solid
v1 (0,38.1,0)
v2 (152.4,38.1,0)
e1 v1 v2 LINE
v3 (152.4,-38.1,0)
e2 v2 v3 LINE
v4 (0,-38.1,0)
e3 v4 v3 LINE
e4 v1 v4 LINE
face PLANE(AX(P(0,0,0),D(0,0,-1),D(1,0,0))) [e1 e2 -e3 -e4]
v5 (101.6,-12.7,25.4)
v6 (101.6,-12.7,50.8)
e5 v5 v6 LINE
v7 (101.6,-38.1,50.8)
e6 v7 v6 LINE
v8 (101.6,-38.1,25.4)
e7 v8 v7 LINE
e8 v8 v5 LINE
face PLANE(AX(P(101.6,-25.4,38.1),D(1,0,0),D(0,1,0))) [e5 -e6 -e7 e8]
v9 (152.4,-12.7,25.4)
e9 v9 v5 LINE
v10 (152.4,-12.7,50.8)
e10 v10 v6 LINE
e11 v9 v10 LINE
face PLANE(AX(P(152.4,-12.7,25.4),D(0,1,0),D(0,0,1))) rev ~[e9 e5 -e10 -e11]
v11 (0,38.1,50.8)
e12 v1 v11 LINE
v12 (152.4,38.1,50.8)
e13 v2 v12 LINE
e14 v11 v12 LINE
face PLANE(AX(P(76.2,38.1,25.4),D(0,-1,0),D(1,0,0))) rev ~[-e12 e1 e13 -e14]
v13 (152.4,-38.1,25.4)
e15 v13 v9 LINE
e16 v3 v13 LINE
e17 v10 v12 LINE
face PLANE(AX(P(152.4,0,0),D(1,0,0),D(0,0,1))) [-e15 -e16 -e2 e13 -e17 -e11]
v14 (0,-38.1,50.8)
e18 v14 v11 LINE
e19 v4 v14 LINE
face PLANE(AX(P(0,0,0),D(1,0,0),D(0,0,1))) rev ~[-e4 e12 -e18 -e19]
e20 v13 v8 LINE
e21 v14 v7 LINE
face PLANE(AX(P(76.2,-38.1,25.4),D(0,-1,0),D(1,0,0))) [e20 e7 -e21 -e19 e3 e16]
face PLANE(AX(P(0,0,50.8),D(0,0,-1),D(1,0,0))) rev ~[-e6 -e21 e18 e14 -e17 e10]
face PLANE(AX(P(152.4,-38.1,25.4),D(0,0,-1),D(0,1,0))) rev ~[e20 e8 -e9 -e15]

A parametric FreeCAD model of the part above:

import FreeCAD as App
import Part
import Sketcher
Q = App.Units.Quantity

doc = App.newDocument("Part")
body = doc.addObject("PartDesign::Body", "Body")

sketch1 = body.newObject("Sketcher::SketchObject", "Sketch")
sketch1.AttachmentSupport = (doc.getObject("XZ_Plane"), [""])
sketch1.MapMode = "FlatFace"
sketch1.addGeometry(Part.LineSegment(App.Vector(0, 51, 0), App.Vector(0, 0, 0)), False)
sketch1.addGeometry(Part.LineSegment(App.Vector(0, 0, 0), App.Vector(152, 0, 0)), False)
sketch1.addGeometry(Part.LineSegment(App.Vector(152, 0, 0), App.Vector(152, 51, 0)), False)
sketch1.addGeometry(Part.LineSegment(App.Vector(152, 51, 0), App.Vector(0, 51, 0)), False)
sketch1.addConstraint(Sketcher.Constraint("Coincident", 0, 2, 1, 1))
sketch1.addConstraint(Sketcher.Constraint("Coincident", 1, 2, 2, 1))
sketch1.addConstraint(Sketcher.Constraint("Coincident", 2, 2, 3, 1))
sketch1.addConstraint(Sketcher.Constraint("Coincident", 3, 2, 0, 1))
sketch1.addConstraint(Sketcher.Constraint("Vertical", 0))
sketch1.addConstraint(Sketcher.Constraint("Horizontal", 1))
sketch1.addConstraint(Sketcher.Constraint("Vertical", 2))
sketch1.addConstraint(Sketcher.Constraint("Horizontal", 3))
sketch1.addConstraint(Sketcher.Constraint("Coincident", 0, 2, -1, 1))
sketch1.addConstraint(Sketcher.Constraint("DistanceX", 1, 1, 1, 2, Q("6 in")))
sketch1.addConstraint(Sketcher.Constraint("DistanceY", 0, 2, 0, 1, Q("2 in")))
pad1 = body.newObject("PartDesign::Pad", "Pad")
pad1.Profile = sketch1
pad1.Length = Q("3 in")
pad1.Midplane = True

sketch2 = body.newObject("Sketcher::SketchObject", "Sketch001")
sketch2.AttachmentSupport = (doc.getObject("YZ_Plane"), [""])
sketch2.MapMode = "FlatFace"
sketch2.AttachmentOffset = App.Placement(App.Vector(0, 0, 6 * 25.4), App.Rotation())
sketch2.addGeometry(Part.LineSegment(App.Vector(-38, 51, 0), App.Vector(-38, 25, 0)), False)
sketch2.addGeometry(Part.LineSegment(App.Vector(-38, 25, 0), App.Vector(-13, 25, 0)), False)
sketch2.addGeometry(Part.LineSegment(App.Vector(-13, 25, 0), App.Vector(-13, 51, 0)), False)
sketch2.addGeometry(Part.LineSegment(App.Vector(-13, 51, 0), App.Vector(-38, 51, 0)), False)
sketch2.addConstraint(Sketcher.Constraint("Coincident", 0, 2, 1, 1))
sketch2.addConstraint(Sketcher.Constraint("Coincident", 1, 2, 2, 1))
sketch2.addConstraint(Sketcher.Constraint("Coincident", 2, 2, 3, 1))
sketch2.addConstraint(Sketcher.Constraint("Coincident", 3, 2, 0, 1))
sketch2.addConstraint(Sketcher.Constraint("Vertical", 0))
sketch2.addConstraint(Sketcher.Constraint("Horizontal", 1))
sketch2.addConstraint(Sketcher.Constraint("Vertical", 2))
sketch2.addConstraint(Sketcher.Constraint("Horizontal", 3))
sketch2.addConstraint(Sketcher.Constraint("Equal", 3, 0))
sketch2.addConstraint(Sketcher.Constraint("DistanceX", 1, 1, 1, 2, Q("1 in")))
sketch2.addConstraint(Sketcher.Constraint("DistanceY", -1, 1, 0, 2, Q("1 in")))
sketch2.addConstraint(Sketcher.Constraint("DistanceX", 0, 2, -1, 1, Q("1.5 in")))
pocket1 = body.newObject("PartDesign::Pocket", "Pocket")
pocket1.Profile = sketch2
pocket1.Length = Q("2 in")

doc.recompute()
